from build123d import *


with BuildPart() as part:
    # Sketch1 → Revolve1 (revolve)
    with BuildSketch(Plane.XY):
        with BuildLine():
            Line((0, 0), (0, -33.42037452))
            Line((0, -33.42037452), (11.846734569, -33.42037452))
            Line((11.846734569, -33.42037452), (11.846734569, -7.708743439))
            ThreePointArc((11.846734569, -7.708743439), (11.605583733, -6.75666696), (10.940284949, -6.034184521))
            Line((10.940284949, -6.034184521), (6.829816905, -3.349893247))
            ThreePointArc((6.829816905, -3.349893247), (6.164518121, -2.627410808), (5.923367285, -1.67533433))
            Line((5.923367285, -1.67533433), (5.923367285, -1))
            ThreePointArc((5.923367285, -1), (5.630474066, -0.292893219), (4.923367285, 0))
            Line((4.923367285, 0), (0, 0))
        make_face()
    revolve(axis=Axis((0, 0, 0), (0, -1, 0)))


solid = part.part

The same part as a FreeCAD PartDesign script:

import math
import FreeCAD as App
import Part
import Sketcher

doc = App.newDocument("Part")
body = doc.addObject("PartDesign::Body", "Body")

sketch1 = body.newObject("Sketcher::SketchObject", "Sketch")
sketch1.AttachmentSupport = (doc.getObject("XY_Plane"), [""])
sketch1.MapMode = "FlatFace"
sketch1.addGeometry(Part.LineSegment(App.Vector(0, 0, 0), App.Vector(0, -33.420375, 0)), False)
sketch1.addGeometry(Part.LineSegment(App.Vector(0, -33.420375, 0), App.Vector(11.846735, -33.420375, 0)), False)
sketch1.addGeometry(Part.LineSegment(App.Vector(11.846735, -33.420375, 0), App.Vector(11.846735, -7.708743, 0)), False)
sketch1.addGeometry(Part.ArcOfCircle(Part.Circle(App.Vector(9.846735, -7.708743, 0), App.Vector(0, 0, 1), 2), math.radians(0), math.radians(56.853942)), False)
sketch1.addGeometry(Part.LineSegment(App.Vector(10.940285, -6.034185, 0), App.Vector(6.829817, -3.349893, 0)), False)
sketch1.addGeometry(Part.ArcOfCircle(Part.Circle(App.Vector(7.923367, -1.675334, 0), App.Vector(0, 0, 1), 2), math.radians(180), math.radians(236.853942)), False)
sketch1.addGeometry(Part.LineSegment(App.Vector(5.923367, -1.675334, 0), App.Vector(5.923367, -1, 0)), False)
sketch1.addGeometry(Part.ArcOfCircle(Part.Circle(App.Vector(4.923367, -1, 0), App.Vector(0, 0, 1), 1), math.radians(0), math.radians(90)), False)
sketch1.addGeometry(Part.LineSegment(App.Vector(4.923367, 0, 0), App.Vector(0, 0, 0)), False)
sketch1.addConstraint(Sketcher.Constraint("Coincident", 0, 2, 1, 1))
sketch1.addConstraint(Sketcher.Constraint("Coincident", 1, 2, 2, 1))
sketch1.addConstraint(Sketcher.Constraint("Tangent", 2, 2, 3, 1))
sketch1.addConstraint(Sketcher.Constraint("Tangent", 3, 2, 4, 1))
sketch1.addConstraint(Sketcher.Constraint("Tangent", 4, 2, 5, 2))
sketch1.addConstraint(Sketcher.Constraint("Tangent", 5, 1, 6, 1))
sketch1.addConstraint(Sketcher.Constraint("Tangent", 6, 2, 7, 1))
sketch1.addConstraint(Sketcher.Constraint("Tangent", 7, 2, 8, 1))
sketch1.addConstraint(Sketcher.Constraint("Coincident", 8, 2, 0, 1))
sketch1.addConstraint(Sketcher.Constraint("Vertical", 0))
sketch1.addConstraint(Sketcher.Constraint("Horizontal", 1))
sketch1.addConstraint(Sketcher.Constraint("Vertical", 2))
sketch1.addConstraint(Sketcher.Constraint("Vertical", 6))
sketch1.addConstraint(Sketcher.Constraint("Horizontal", 8))
sketch1.addConstraint(Sketcher.Constraint("Coincident", 8, 2, -1, 1))
sketch1.addConstraint(Sketcher.Constraint("Equal", 3, 5))
sketch1.addConstraint(Sketcher.Constraint("Radius", 3, 2.0))
sketch1.addConstraint(Sketcher.Constraint("Radius", 7, 1.0))
sketch1.addConstraint(Sketcher.Constraint("DistanceY", 2, 1, 2, 2, 25.711631))
sketch1.addConstraint(Sketcher.Constraint("DistanceX", 1, 1, 1, 2, 11.846735))
sketch1.addConstraint(Sketcher.Constraint("DistanceX", 8, 2, 8, 1, 4.923367))
sketch1.addConstraint(Sketcher.Constraint("DistanceY", 0, 2, 0, 1, 33.420375))
sketch1.addConstraint(Sketcher.Constraint("DistanceY", 6, 1, 6, 2, 0.675334))
revolution = body.newObject("PartDesign::Revolution", "Revolution")
revolution.Profile = sketch1
revolution.ReferenceAxis = (sketch1, ["V_Axis"])
revolution.Angle = 360

doc.recompute()
